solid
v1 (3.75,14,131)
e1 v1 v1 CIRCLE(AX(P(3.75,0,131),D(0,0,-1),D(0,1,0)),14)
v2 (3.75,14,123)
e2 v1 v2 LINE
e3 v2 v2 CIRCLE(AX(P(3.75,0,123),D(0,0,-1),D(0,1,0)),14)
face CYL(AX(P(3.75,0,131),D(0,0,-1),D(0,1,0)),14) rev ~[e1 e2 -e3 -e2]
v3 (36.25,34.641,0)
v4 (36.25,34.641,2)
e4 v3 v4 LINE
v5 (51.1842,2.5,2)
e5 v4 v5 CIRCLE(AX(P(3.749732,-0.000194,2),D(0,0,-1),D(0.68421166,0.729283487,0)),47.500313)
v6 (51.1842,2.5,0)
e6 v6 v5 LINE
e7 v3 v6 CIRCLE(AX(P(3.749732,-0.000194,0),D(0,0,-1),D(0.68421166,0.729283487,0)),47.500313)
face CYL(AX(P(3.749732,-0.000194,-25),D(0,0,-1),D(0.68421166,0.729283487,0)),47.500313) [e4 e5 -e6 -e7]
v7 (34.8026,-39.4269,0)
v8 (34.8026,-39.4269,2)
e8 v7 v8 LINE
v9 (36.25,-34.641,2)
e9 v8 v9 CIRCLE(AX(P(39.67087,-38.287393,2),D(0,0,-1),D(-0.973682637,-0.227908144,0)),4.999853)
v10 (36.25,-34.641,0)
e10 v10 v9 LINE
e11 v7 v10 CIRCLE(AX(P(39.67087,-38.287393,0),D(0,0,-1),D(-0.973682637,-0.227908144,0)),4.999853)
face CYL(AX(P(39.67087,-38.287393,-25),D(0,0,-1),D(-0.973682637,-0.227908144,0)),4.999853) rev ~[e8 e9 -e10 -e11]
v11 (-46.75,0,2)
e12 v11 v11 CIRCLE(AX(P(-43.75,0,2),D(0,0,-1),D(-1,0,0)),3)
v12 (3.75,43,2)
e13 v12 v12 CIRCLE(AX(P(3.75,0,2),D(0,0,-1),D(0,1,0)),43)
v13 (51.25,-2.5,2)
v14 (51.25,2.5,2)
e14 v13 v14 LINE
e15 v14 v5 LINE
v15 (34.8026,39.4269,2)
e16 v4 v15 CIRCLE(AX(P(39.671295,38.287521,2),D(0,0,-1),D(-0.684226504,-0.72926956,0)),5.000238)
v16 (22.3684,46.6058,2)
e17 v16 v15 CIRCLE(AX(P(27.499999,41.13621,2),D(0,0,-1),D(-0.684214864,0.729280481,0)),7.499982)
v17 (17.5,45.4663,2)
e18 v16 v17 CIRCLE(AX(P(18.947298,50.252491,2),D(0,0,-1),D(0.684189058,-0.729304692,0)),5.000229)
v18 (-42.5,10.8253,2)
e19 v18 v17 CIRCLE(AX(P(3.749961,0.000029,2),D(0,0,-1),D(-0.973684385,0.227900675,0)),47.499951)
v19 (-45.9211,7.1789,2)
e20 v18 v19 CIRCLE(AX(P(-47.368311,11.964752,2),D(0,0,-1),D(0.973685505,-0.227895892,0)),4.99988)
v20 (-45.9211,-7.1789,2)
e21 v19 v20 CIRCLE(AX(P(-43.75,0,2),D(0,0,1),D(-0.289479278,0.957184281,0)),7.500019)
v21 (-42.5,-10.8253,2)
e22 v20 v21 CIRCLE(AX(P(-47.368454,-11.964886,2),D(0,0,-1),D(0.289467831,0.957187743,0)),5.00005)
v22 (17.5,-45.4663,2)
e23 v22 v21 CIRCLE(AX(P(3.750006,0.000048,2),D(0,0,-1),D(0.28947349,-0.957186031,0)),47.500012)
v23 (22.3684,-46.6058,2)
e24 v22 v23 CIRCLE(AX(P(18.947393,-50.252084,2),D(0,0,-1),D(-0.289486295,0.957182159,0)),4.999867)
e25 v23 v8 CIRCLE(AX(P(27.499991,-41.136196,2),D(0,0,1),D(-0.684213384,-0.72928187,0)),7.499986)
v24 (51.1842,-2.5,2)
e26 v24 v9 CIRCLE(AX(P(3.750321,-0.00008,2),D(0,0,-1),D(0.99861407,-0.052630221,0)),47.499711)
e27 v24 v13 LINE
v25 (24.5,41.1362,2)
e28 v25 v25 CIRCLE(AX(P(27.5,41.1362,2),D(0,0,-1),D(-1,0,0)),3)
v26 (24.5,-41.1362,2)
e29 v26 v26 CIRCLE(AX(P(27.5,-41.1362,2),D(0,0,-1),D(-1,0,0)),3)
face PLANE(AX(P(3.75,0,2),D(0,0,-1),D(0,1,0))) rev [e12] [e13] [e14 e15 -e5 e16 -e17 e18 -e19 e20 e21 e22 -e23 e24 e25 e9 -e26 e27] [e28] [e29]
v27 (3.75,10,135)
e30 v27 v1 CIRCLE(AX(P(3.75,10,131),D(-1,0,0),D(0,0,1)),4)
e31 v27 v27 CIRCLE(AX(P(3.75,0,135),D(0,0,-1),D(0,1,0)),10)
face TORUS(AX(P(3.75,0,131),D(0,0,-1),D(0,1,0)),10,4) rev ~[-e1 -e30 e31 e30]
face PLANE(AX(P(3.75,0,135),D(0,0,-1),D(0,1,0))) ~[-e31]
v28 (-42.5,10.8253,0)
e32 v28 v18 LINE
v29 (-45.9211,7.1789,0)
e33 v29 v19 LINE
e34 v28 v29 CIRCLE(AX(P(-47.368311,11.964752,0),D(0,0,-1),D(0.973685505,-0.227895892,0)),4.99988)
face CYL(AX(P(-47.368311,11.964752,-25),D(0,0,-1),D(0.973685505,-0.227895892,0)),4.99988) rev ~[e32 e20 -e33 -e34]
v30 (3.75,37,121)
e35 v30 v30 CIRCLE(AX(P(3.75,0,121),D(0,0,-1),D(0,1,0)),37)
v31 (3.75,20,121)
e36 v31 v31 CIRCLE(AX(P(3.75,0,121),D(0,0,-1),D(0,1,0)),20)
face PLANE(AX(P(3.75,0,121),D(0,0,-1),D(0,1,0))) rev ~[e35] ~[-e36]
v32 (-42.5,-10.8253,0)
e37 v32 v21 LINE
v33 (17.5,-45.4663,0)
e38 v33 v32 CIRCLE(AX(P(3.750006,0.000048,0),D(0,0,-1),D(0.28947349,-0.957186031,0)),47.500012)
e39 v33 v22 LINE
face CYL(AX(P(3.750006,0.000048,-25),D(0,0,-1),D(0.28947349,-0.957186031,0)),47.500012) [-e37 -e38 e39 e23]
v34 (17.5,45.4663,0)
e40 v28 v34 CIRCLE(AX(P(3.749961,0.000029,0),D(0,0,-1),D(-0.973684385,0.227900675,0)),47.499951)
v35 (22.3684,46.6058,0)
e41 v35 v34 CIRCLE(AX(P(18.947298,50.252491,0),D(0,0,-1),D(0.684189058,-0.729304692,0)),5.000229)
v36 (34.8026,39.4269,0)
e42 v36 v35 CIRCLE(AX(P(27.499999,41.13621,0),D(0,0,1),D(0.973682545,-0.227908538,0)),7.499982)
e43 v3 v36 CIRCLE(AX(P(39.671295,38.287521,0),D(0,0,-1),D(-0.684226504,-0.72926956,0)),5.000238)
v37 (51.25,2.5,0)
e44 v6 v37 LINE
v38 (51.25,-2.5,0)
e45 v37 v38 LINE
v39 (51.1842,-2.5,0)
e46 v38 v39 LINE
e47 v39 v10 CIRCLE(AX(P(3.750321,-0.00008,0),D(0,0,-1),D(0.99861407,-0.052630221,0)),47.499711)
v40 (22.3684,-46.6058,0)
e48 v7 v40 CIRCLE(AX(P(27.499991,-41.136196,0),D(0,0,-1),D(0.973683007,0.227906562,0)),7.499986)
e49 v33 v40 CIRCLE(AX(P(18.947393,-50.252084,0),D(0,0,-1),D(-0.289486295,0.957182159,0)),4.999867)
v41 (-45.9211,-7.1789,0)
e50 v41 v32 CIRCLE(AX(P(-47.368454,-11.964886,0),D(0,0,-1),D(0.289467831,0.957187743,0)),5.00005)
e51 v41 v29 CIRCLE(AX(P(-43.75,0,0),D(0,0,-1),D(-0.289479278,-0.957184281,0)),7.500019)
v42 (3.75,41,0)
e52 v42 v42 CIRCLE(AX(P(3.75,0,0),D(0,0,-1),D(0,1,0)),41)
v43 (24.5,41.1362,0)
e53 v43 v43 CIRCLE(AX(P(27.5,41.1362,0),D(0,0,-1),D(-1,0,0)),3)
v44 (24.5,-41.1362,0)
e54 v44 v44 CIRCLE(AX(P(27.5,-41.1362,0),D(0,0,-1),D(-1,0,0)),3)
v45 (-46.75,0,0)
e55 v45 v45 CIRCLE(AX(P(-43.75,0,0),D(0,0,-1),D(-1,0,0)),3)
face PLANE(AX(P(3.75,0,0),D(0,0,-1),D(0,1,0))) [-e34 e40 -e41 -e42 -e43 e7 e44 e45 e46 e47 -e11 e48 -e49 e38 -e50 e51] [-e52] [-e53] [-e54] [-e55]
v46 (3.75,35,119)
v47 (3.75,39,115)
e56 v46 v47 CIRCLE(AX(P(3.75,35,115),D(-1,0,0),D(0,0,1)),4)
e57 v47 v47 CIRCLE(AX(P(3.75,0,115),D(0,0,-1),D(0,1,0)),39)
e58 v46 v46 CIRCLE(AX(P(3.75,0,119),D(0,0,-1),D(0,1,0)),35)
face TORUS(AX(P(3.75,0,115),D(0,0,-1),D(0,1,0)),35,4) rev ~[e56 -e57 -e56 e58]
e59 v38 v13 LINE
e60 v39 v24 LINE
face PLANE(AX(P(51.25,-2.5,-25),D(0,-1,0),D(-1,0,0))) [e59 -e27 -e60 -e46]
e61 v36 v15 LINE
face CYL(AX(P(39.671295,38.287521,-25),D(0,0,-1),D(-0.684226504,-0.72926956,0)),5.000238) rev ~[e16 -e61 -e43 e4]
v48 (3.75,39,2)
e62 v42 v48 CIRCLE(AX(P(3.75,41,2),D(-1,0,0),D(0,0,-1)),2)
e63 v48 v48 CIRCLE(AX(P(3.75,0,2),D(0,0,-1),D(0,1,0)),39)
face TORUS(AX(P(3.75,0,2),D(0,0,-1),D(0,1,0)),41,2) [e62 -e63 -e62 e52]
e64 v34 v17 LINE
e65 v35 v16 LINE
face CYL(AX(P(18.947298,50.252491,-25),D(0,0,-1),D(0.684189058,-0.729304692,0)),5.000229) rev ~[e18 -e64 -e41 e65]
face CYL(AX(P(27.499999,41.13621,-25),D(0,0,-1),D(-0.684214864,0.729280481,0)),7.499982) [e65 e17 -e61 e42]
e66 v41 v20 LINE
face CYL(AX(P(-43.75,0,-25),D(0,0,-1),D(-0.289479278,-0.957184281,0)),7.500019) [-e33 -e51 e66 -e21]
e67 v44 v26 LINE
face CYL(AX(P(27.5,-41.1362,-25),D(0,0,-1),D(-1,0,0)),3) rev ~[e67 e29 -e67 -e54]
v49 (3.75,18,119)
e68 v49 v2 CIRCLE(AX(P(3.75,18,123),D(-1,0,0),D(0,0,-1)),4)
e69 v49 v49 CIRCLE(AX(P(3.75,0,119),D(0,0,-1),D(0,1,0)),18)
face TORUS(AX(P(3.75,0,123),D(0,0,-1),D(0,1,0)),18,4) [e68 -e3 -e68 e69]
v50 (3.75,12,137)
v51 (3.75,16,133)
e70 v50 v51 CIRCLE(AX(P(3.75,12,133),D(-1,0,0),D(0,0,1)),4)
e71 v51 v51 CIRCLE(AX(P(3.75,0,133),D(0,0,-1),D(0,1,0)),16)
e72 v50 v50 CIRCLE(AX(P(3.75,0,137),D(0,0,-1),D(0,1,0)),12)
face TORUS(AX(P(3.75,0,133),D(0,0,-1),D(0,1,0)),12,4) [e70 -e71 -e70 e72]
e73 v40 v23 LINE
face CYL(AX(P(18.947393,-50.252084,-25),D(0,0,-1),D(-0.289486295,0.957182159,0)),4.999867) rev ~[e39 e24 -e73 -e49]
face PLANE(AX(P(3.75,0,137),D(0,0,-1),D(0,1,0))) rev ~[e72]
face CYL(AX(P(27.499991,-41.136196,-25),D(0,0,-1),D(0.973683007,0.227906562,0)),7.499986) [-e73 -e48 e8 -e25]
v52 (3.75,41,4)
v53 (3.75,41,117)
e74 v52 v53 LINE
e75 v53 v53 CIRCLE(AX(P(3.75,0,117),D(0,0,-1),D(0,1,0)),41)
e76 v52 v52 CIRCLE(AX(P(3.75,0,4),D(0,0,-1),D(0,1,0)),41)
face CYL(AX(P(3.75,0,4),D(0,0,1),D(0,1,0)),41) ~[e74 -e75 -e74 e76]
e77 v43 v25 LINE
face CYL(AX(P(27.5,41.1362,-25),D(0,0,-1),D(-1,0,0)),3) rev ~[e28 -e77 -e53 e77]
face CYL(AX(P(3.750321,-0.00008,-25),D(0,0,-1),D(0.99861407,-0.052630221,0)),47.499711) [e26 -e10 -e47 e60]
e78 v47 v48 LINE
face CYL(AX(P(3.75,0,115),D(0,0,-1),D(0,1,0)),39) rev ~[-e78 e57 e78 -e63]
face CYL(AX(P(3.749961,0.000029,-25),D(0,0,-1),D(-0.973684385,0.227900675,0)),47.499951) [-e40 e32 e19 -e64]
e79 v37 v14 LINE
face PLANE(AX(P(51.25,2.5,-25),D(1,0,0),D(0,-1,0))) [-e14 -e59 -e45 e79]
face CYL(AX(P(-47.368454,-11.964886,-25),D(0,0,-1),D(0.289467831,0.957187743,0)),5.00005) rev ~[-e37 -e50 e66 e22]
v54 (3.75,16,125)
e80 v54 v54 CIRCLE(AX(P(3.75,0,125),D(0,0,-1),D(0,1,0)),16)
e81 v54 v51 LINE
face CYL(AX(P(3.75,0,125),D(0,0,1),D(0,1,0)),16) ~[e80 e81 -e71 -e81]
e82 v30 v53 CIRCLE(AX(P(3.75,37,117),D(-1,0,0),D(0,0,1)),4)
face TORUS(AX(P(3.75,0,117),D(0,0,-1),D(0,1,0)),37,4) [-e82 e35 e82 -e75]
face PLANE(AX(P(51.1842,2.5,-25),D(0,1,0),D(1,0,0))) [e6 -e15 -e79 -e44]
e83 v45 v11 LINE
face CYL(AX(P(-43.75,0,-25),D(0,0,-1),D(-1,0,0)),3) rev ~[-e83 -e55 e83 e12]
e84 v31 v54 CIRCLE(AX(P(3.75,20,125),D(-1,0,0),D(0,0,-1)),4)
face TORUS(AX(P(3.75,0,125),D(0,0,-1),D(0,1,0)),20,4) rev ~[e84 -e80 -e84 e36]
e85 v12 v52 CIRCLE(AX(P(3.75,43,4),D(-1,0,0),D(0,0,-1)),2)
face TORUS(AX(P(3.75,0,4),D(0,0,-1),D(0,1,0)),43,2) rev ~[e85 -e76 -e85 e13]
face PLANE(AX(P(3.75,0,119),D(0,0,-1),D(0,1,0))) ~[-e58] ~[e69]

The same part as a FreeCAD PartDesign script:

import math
import FreeCAD as App
import Part
import Sketcher

doc = App.newDocument("Part")
body = doc.addObject("PartDesign::Body", "Body")

# Sketch on YZ plane
sketch1 = body.newObject("Sketcher::SketchObject", "Sketch")
sketch1.AttachmentSupport = (doc.getObject("YZ_Plane"), [""])
sketch1.MapMode = "FlatFace"
sketch1.AttachmentOffset = App.Placement(App.Vector(0, 0, 3.75), App.Rotation())
sketch1.addGeometry(Part.LineSegment(App.Vector(55, 2, 0), App.Vector(55, 0, 0)), False)
sketch1.addGeometry(Part.LineSegment(App.Vector(55, 0, 0), App.Vector(41, 0, 0)), False)
sketch1.addGeometry(Part.ArcOfCircle(Part.Circle(App.Vector(41, 2, 0), App.Vector(0, 0, 1), 2), math.radians(180), math.radians(270)), False)
sketch1.addGeometry(Part.LineSegment(App.Vector(39, 2, 0), App.Vector(39, 115, 0)), False)
sketch1.addGeometry(Part.ArcOfCircle(Part.Circle(App.Vector(35, 115, 0), App.Vector(0, 0, 1), 4), math.radians(0), math.radians(90)), False)
sketch1.addGeometry(Part.LineSegment(App.Vector(35, 119, 0), App.Vector(18, 119, 0)), False)
sketch1.addGeometry(Part.ArcOfCircle(Part.Circle(App.Vector(18, 123, 0), App.Vector(0, 0, 1), 4), math.radians(180), math.radians(270)), False)
sketch1.addGeometry(Part.LineSegment(App.Vector(14, 123, 0), App.Vector(14, 131, 0)), False)
sketch1.addGeometry(Part.ArcOfCircle(Part.Circle(App.Vector(10, 131, 0), App.Vector(0, 0, 1), 4), math.radians(0), math.radians(90)), False)
sketch1.addGeometry(Part.LineSegment(App.Vector(10, 135, 0), App.Vector(0, 135, 0)), False)
sketch1.addGeometry(Part.LineSegment(App.Vector(0, 135, 0), App.Vector(0, 137, 0)), False)
sketch1.addGeometry(Part.LineSegment(App.Vector(0, 137, 0), App.Vector(12, 137, 0)), False)
sketch1.addGeometry(Part.ArcOfCircle(Part.Circle(App.Vector(12, 133, 0), App.Vector(0, 0, 1), 4), math.radians(0), math.radians(90)), False)
sketch1.addGeometry(Part.LineSegment(App.Vector(16, 133, 0), App.Vector(16, 125, 0)), False)
sketch1.addGeometry(Part.ArcOfCircle(Part.Circle(App.Vector(20, 125, 0), App.Vector(0, 0, 1), 4), math.radians(180), math.radians(270)), False)
sketch1.addGeometry(Part.LineSegment(App.Vector(20, 121, 0), App.Vector(37, 121, 0)), False)
sketch1.addGeometry(Part.ArcOfCircle(Part.Circle(App.Vector(37, 117, 0), App.Vector(0, 0, 1), 4), math.radians(0), math.radians(90)), False)
sketch1.addGeometry(Part.LineSegment(App.Vector(41, 117, 0), App.Vector(41, 4, 0)), False)
sketch1.addGeometry(Part.ArcOfCircle(Part.Circle(App.Vector(43, 4, 0), App.Vector(0, 0, 1), 2), math.radians(180), math.radians(270)), False)
sketch1.addGeometry(Part.LineSegment(App.Vector(43, 2, 0), App.Vector(55, 2, 0)), False)
sketch1.addConstraint(Sketcher.Constraint("Coincident", 0, 2, 1, 1))
sketch1.addConstraint(Sketcher.Constraint("Tangent", 1, 2, 2, 2))
sketch1.addConstraint(Sketcher.Constraint("Tangent", 2, 1, 3, 1))
sketch1.addConstraint(Sketcher.Constraint("Tangent", 3, 2, 4, 1))
sketch1.addConstraint(Sketcher.Constraint("Tangent", 4, 2, 5, 1))
sketch1.addConstraint(Sketcher.Constraint("Tangent", 5, 2, 6, 2))
sketch1.addConstraint(Sketcher.Constraint("Tangent", 6, 1, 7, 1))
sketch1.addConstraint(Sketcher.Constraint("Tangent", 7, 2, 8, 1))
sketch1.addConstraint(Sketcher.Constraint("Tangent", 8, 2, 9, 1))
sketch1.addConstraint(Sketcher.Constraint("Coincident", 9, 2, 10, 1))
sketch1.addConstraint(Sketcher.Constraint("Coincident", 10, 2, 11, 1))
sketch1.addConstraint(Sketcher.Constraint("Tangent", 11, 2, 12, 2))
sketch1.addConstraint(Sketcher.Constraint("Tangent", 12, 1, 13, 1))
sketch1.addConstraint(Sketcher.Constraint("Tangent", 13, 2, 14, 1))
sketch1.addConstraint(Sketcher.Constraint("Tangent", 14, 2, 15, 1))
sketch1.addConstraint(Sketcher.Constraint("Tangent", 15, 2, 16, 2))
sketch1.addConstraint(Sketcher.Constraint("Tangent", 16, 1, 17, 1))
sketch1.addConstraint(Sketcher.Constraint("Tangent", 17, 2, 18, 1))
sketch1.addConstraint(Sketcher.Constraint("Tangent", 18, 2, 19, 1))
sketch1.addConstraint(Sketcher.Constraint("Coincident", 19, 2, 0, 1))
sketch1.addConstraint(Sketcher.Constraint("Vertical", 0))
sketch1.addConstraint(Sketcher.Constraint("Horizontal", 1))
sketch1.addConstraint(Sketcher.Constraint("Vertical", 3))
sketch1.addConstraint(Sketcher.Constraint("Horizontal", 5))
sketch1.addConstraint(Sketcher.Constraint("Vertical", 7))
sketch1.addConstraint(Sketcher.Constraint("Horizontal", 9))
sketch1.addConstraint(Sketcher.Constraint("Vertical", 10))
sketch1.addConstraint(Sketcher.Constraint("Horizontal", 11))
sketch1.addConstraint(Sketcher.Constraint("Vertical", 13))
sketch1.addConstraint(Sketcher.Constraint("Horizontal", 15))
sketch1.addConstraint(Sketcher.Constraint("Vertical", 17))
sketch1.addConstraint(Sketcher.Constraint("Horizontal", 19))
sketch1.addConstraint(Sketcher.Constraint("Equal", 4, 6))
sketch1.addConstraint(Sketcher.Constraint("Equal", 6, 8))
sketch1.addConstraint(Sketcher.Constraint("Equal", 8, 12))
sketch1.addConstraint(Sketcher.Constraint("Equal", 12, 14))
sketch1.addConstraint(Sketcher.Constraint("Equal", 14, 16))
sketch1.addConstraint(Sketcher.Constraint("Equal", 2, 18))
sketch1.addConstraint(Sketcher.Constraint("PointOnObject", 0, 2, -1))
sketch1.addConstraint(Sketcher.Constraint("PointOnObject", 9, 2, -2))
sketch1.addConstraint(Sketcher.Constraint("Horizontal", 2, 1, 18, 2))
sketch1.addConstraint(Sketcher.Constraint("Vertical", 1, 2, 16, 1))
sketch1.addConstraint(Sketcher.Constraint("Equal", 5, 15))
sketch1.addConstraint(Sketcher.Constraint("Equal", 11, 19))
sketch1.addConstraint(Sketcher.Constraint("Equal", 0, 10))
sketch1.addConstraint(Sketcher.Constraint("Equal", 7, 13))
sketch1.addConstraint(Sketcher.Constraint("Radius", 2, 2.0))
sketch1.addConstraint(Sketcher.Constraint("Radius", 4, 4.0))
sketch1.addConstraint(Sketcher.Constraint("DistanceX", 1, 2, 1, 1, 14.0))
sketch1.addConstraint(Sketcher.Constraint("DistanceX", 5, 2, 5, 1, 17.0))
sketch1.addConstraint(Sketcher.Constraint("DistanceY", 3, 1, 3, 2, 113.0))
sketch1.addConstraint(Sketcher.Constraint("DistanceY", 7, 1, 7, 2, 8.0))
revolution = body.newObject("PartDesign::Revolution", "Revolution")
revolution.Profile = sketch1
revolution.ReferenceAxis = (sketch1, ["V_Axis"])
revolution.Angle = 360

# Sketch on XY plane
sketch2 = body.newObject("Sketcher::SketchObject", "Sketch001")
sketch2.AttachmentSupport = (doc.getObject("XY_Plane"), [""])
sketch2.MapMode = "FlatFace"
sketch2.AttachmentOffset = App.Placement(App.Vector(0, 0, -25), App.Rotation())
sketch2.addGeometry(Part.ArcOfCircle(Part.Circle(App.Vector(-43.75, 0, 0), App.Vector(0, 0, 1), 7.5), math.radians(107), math.radians(180)), False)
sketch2.addGeometry(Part.ArcOfCircle(Part.Circle(App.Vector(3.75, 0, 0), App.Vector(0, 0, 1), 55), math.radians(60), math.radians(180)), False)
sketch2.addGeometry(Part.ArcOfCircle(Part.Circle(App.Vector(27.5, 41.14, 0), App.Vector(0, 0, 1), 7.5), math.radians(60), math.radians(133)), False)
sketch2.addGeometry(Part.ArcOfCircle(Part.Circle(App.Vector(18.95, 50.25, 0), App.Vector(0, 0, 1), 5), math.radians(-107), math.radians(-47)), False)
sketch2.addGeometry(Part.ArcOfCircle(Part.Circle(App.Vector(3.75, 0, 0), App.Vector(0, 0, 1), 47.5), math.radians(73), math.radians(167)), False)
sketch2.addGeometry(Part.ArcOfCircle(Part.Circle(App.Vector(-47.37, 11.96, 0), App.Vector(0, 0, 1), 5), math.radians(-73), math.radians(-13)), False)
sketch2.addGeometry(Part.ArcOfCircle(Part.Circle(App.Vector(3.75, 0, 0), App.Vector(0, 0, 1), 55), math.radians(180), math.radians(300)), False)
sketch2.addGeometry(Part.ArcOfCircle(Part.Circle(App.Vector(-43.75, 0, 0), App.Vector(0, 0, 1), 7.5), math.radians(180), math.radians(253)), False)
sketch2.addGeometry(Part.ArcOfCircle(Part.Circle(App.Vector(-47.37, -11.96, 0), App.Vector(0, 0, 1), 5), math.radians(13), math.radians(73)), False)
sketch2.addGeometry(Part.ArcOfCircle(Part.Circle(App.Vector(3.75, 0, 0), App.Vector(0, 0, 1), 47.5), math.radians(-167), math.radians(-73)), False)
sketch2.addGeometry(Part.ArcOfCircle(Part.Circle(App.Vector(18.95, -50.25, 0), App.Vector(0, 0, 1), 5), math.radians(47), math.radians(107)), False)
sketch2.addGeometry(Part.ArcOfCircle(Part.Circle(App.Vector(27.5, -41.14, 0), App.Vector(0, 0, 1), 7.5), math.radians(-133), math.radians(-60)), False)
sketch2.addGeometry(Part.ArcOfCircle(Part.Circle(App.Vector(27.5, 41.14, 0), App.Vector(0, 0, 1), 7.5), math.radians(-13), math.radians(60)), False)
sketch2.addGeometry(Part.ArcOfCircle(Part.Circle(App.Vector(3.75, 0, 0), App.Vector(0, 0, 1), 55), math.radians(-60), math.radians(60)), False)
sketch2.addGeometry(Part.ArcOfCircle(Part.Circle(App.Vector(27.5, -41.14, 0), App.Vector(0, 0, 1), 7.5), math.radians(-60), math.radians(13)), False)
sketch2.addGeometry(Part.ArcOfCircle(Part.Circle(App.Vector(39.67, -38.29, 0), App.Vector(0, 0, 1), 5), math.radians(133), math.radians(193)), False)
sketch2.addGeometry(Part.ArcOfCircle(Part.Circle(App.Vector(3.75, 0, 0), App.Vector(0, 0, 1), 47.5), math.radians(-47), math.radians(-3)), False)
sketch2.addGeometry(Part.LineSegment(App.Vector(51.18, -2.5, 0), App.Vector(51.25, -2.5, 0)), False)
sketch2.addGeometry(Part.LineSegment(App.Vector(51.25, -2.5, 0), App.Vector(51.25, 2.5, 0)), False)
sketch2.addGeometry(Part.LineSegment(App.Vector(51.25, 2.5, 0), App.Vector(51.18, 2.5, 0)), False)
sketch2.addGeometry(Part.ArcOfCircle(Part.Circle(App.Vector(3.75, 0, 0), App.Vector(0, 0, 1), 47.5), math.radians(3), math.radians(47)), False)
sketch2.addGeometry(Part.ArcOfCircle(Part.Circle(App.Vector(39.67, 38.29, 0), App.Vector(0, 0, 1), 5), math.radians(167), math.radians(227)), False)
sketch2.addGeometry(Part.Circle(App.Vector(27.5, -41.14, 0), App.Vector(0, 0, 1), 3), False)
sketch2.addGeometry(Part.Circle(App.Vector(27.5, 41.14, 0), App.Vector(0, 0, 1), 3), False)
sketch2.addGeometry(Part.Circle(App.Vector(-43.75, 0, 0), App.Vector(0, 0, 1), 3), False)
sketch2.addConstraint(Sketcher.Constraint("Tangent", 0, 2, 1, 2))
sketch2.addConstraint(Sketcher.Constraint("Tangent", 1, 1, 2, 1))
sketch2.addConstraint(Sketcher.Constraint("Tangent", 2, 2, 3, 2))
sketch2.addConstraint(Sketcher.Constraint("Tangent", 3, 1, 4, 1))
sketch2.addConstraint(Sketcher.Constraint("Tangent", 4, 2, 5, 2))
sketch2.addConstraint(Sketcher.Constraint("Tangent", 5, 1, 0, 1))
sketch2.addConstraint(Sketcher.Constraint("Tangent", 6, 1, 7, 1))
sketch2.addConstraint(Sketcher.Constraint("Tangent", 7, 2, 8, 2))
sketch2.addConstraint(Sketcher.Constraint("Tangent", 8, 1, 9, 1))
sketch2.addConstraint(Sketcher.Constraint("Tangent", 9, 2, 10, 2))
sketch2.addConstraint(Sketcher.Constraint("Tangent", 10, 1, 11, 1))
sketch2.addConstraint(Sketcher.Constraint("Tangent", 11, 2, 6, 2))
sketch2.addConstraint(Sketcher.Constraint("Tangent", 12, 2, 13, 2))
sketch2.addConstraint(Sketcher.Constraint("Tangent", 13, 1, 14, 1))
sketch2.addConstraint(Sketcher.Constraint("Tangent", 14, 2, 15, 2))
sketch2.addConstraint(Sketcher.Constraint("Tangent", 15, 1, 16, 1))
sketch2.addConstraint(Sketcher.Constraint("Coincident", 16, 2, 17, 1))
sketch2.addConstraint(Sketcher.Constraint("Coincident", 17, 2, 18, 1))
sketch2.addConstraint(Sketcher.Constraint("Coincident", 18, 2, 19, 1))
sketch2.addConstraint(Sketcher.Constraint("Coincident", 19, 2, 20, 1))
sketch2.addConstraint(Sketcher.Constraint("Tangent", 20, 2, 21, 2))
sketch2.addConstraint(Sketcher.Constraint("Tangent", 21, 1, 12, 1))
sketch2.addConstraint(Sketcher.Constraint("Horizontal", 17))
sketch2.addConstraint(Sketcher.Constraint("Vertical", 18))
sketch2.addConstraint(Sketcher.Constraint("Horizontal", 19))
sketch2.addConstraint(Sketcher.Constraint("Coincident", 4, 3, 1, 3))
sketch2.addConstraint(Sketcher.Constraint("Coincident", 6, 3, 1, 3))
sketch2.addConstraint(Sketcher.Constraint("Coincident", 7, 3, 0, 3))
sketch2.addConstraint(Sketcher.Constraint("Coincident", 9, 3, 1, 3))
sketch2.addConstraint(Sketcher.Constraint("Coincident", 12, 3, 2, 3))
sketch2.addConstraint(Sketcher.Constraint("Coincident", 13, 3, 1, 3))
sketch2.addConstraint(Sketcher.Constraint("Coincident", 14, 3, 11, 3))
sketch2.addConstraint(Sketcher.Constraint("Coincident", 16, 3, 1, 3))
sketch2.addConstraint(Sketcher.Constraint("Coincident", 20, 3, 1, 3))
sketch2.addConstraint(Sketcher.Constraint("Coincident", 22, 3, 11, 3))
sketch2.addConstraint(Sketcher.Constraint("Coincident", 23, 3, 2, 3))
sketch2.addConstraint(Sketcher.Constraint("Coincident", 24, 3, 0, 3))
sketch2.addConstraint(Sketcher.Constraint("Equal", 0, 2))
sketch2.addConstraint(Sketcher.Constraint("Equal", 3, 5))
sketch2.addConstraint(Sketcher.Constraint("Equal", 1, 6))
sketch2.addConstraint(Sketcher.Constraint("Equal", 5, 8))
sketch2.addConstraint(Sketcher.Constraint("Equal", 4, 9))
sketch2.addConstraint(Sketcher.Constraint("Equal", 8, 10))
sketch2.addConstraint(Sketcher.Constraint("Equal", 7, 11))
sketch2.addConstraint(Sketcher.Constraint("Equal", 11, 12))
sketch2.addConstraint(Sketcher.Constraint("Equal", 10, 15))
sketch2.addConstraint(Sketcher.Constraint("Equal", 9, 16))
sketch2.addConstraint(Sketcher.Constraint("Equal", 16, 20))
sketch2.addConstraint(Sketcher.Constraint("Equal", 15, 21))
sketch2.addConstraint(Sketcher.Constraint("Equal", 22, 23))
sketch2.addConstraint(Sketcher.Constraint("Equal", 23, 24))
sketch2.addConstraint(Sketcher.Constraint("Symmetric", 5, 3, 8, 3, -1))
sketch2.addConstraint(Sketcher.Constraint("Vertical", 3, 3, 10, 3))
sketch2.addConstraint(Sketcher.Constraint("Vertical", 16, 2, 19, 2))
sketch2.addConstraint(Sketcher.Constraint("Diameter", 22, 6.0))
sketch2.addConstraint(Sketcher.Constraint("Radius", 1, 55.0))
sketch2.addConstraint(Sketcher.Constraint("Radius", 3, 5.0))
sketch2.addConstraint(Sketcher.Constraint("Radius", 0, 7.5))
sketch2.addConstraint(Sketcher.Constraint("Radius", 4, 47.5))
sketch2.addConstraint(Sketcher.Constraint("DistanceY", 18, 1, 18, 2, 5.0))
sketch2.addConstraint(Sketcher.Constraint("DistanceX", 3, 1, 2, 3, 10.0))
sketch2.addConstraint(Sketcher.Constraint("DistanceX", 15, 1, 17, 2, 15.0))
sketch2.addConstraint(Sketcher.Constraint("DistanceX", -1, 1, 2, 3, 27.5))
pocket1 = body.newObject("PartDesign::Pocket", "Pocket")
pocket1.Profile = sketch2
pocket1.Length = 146
pocket1.Reversed = True

doc.recompute()
